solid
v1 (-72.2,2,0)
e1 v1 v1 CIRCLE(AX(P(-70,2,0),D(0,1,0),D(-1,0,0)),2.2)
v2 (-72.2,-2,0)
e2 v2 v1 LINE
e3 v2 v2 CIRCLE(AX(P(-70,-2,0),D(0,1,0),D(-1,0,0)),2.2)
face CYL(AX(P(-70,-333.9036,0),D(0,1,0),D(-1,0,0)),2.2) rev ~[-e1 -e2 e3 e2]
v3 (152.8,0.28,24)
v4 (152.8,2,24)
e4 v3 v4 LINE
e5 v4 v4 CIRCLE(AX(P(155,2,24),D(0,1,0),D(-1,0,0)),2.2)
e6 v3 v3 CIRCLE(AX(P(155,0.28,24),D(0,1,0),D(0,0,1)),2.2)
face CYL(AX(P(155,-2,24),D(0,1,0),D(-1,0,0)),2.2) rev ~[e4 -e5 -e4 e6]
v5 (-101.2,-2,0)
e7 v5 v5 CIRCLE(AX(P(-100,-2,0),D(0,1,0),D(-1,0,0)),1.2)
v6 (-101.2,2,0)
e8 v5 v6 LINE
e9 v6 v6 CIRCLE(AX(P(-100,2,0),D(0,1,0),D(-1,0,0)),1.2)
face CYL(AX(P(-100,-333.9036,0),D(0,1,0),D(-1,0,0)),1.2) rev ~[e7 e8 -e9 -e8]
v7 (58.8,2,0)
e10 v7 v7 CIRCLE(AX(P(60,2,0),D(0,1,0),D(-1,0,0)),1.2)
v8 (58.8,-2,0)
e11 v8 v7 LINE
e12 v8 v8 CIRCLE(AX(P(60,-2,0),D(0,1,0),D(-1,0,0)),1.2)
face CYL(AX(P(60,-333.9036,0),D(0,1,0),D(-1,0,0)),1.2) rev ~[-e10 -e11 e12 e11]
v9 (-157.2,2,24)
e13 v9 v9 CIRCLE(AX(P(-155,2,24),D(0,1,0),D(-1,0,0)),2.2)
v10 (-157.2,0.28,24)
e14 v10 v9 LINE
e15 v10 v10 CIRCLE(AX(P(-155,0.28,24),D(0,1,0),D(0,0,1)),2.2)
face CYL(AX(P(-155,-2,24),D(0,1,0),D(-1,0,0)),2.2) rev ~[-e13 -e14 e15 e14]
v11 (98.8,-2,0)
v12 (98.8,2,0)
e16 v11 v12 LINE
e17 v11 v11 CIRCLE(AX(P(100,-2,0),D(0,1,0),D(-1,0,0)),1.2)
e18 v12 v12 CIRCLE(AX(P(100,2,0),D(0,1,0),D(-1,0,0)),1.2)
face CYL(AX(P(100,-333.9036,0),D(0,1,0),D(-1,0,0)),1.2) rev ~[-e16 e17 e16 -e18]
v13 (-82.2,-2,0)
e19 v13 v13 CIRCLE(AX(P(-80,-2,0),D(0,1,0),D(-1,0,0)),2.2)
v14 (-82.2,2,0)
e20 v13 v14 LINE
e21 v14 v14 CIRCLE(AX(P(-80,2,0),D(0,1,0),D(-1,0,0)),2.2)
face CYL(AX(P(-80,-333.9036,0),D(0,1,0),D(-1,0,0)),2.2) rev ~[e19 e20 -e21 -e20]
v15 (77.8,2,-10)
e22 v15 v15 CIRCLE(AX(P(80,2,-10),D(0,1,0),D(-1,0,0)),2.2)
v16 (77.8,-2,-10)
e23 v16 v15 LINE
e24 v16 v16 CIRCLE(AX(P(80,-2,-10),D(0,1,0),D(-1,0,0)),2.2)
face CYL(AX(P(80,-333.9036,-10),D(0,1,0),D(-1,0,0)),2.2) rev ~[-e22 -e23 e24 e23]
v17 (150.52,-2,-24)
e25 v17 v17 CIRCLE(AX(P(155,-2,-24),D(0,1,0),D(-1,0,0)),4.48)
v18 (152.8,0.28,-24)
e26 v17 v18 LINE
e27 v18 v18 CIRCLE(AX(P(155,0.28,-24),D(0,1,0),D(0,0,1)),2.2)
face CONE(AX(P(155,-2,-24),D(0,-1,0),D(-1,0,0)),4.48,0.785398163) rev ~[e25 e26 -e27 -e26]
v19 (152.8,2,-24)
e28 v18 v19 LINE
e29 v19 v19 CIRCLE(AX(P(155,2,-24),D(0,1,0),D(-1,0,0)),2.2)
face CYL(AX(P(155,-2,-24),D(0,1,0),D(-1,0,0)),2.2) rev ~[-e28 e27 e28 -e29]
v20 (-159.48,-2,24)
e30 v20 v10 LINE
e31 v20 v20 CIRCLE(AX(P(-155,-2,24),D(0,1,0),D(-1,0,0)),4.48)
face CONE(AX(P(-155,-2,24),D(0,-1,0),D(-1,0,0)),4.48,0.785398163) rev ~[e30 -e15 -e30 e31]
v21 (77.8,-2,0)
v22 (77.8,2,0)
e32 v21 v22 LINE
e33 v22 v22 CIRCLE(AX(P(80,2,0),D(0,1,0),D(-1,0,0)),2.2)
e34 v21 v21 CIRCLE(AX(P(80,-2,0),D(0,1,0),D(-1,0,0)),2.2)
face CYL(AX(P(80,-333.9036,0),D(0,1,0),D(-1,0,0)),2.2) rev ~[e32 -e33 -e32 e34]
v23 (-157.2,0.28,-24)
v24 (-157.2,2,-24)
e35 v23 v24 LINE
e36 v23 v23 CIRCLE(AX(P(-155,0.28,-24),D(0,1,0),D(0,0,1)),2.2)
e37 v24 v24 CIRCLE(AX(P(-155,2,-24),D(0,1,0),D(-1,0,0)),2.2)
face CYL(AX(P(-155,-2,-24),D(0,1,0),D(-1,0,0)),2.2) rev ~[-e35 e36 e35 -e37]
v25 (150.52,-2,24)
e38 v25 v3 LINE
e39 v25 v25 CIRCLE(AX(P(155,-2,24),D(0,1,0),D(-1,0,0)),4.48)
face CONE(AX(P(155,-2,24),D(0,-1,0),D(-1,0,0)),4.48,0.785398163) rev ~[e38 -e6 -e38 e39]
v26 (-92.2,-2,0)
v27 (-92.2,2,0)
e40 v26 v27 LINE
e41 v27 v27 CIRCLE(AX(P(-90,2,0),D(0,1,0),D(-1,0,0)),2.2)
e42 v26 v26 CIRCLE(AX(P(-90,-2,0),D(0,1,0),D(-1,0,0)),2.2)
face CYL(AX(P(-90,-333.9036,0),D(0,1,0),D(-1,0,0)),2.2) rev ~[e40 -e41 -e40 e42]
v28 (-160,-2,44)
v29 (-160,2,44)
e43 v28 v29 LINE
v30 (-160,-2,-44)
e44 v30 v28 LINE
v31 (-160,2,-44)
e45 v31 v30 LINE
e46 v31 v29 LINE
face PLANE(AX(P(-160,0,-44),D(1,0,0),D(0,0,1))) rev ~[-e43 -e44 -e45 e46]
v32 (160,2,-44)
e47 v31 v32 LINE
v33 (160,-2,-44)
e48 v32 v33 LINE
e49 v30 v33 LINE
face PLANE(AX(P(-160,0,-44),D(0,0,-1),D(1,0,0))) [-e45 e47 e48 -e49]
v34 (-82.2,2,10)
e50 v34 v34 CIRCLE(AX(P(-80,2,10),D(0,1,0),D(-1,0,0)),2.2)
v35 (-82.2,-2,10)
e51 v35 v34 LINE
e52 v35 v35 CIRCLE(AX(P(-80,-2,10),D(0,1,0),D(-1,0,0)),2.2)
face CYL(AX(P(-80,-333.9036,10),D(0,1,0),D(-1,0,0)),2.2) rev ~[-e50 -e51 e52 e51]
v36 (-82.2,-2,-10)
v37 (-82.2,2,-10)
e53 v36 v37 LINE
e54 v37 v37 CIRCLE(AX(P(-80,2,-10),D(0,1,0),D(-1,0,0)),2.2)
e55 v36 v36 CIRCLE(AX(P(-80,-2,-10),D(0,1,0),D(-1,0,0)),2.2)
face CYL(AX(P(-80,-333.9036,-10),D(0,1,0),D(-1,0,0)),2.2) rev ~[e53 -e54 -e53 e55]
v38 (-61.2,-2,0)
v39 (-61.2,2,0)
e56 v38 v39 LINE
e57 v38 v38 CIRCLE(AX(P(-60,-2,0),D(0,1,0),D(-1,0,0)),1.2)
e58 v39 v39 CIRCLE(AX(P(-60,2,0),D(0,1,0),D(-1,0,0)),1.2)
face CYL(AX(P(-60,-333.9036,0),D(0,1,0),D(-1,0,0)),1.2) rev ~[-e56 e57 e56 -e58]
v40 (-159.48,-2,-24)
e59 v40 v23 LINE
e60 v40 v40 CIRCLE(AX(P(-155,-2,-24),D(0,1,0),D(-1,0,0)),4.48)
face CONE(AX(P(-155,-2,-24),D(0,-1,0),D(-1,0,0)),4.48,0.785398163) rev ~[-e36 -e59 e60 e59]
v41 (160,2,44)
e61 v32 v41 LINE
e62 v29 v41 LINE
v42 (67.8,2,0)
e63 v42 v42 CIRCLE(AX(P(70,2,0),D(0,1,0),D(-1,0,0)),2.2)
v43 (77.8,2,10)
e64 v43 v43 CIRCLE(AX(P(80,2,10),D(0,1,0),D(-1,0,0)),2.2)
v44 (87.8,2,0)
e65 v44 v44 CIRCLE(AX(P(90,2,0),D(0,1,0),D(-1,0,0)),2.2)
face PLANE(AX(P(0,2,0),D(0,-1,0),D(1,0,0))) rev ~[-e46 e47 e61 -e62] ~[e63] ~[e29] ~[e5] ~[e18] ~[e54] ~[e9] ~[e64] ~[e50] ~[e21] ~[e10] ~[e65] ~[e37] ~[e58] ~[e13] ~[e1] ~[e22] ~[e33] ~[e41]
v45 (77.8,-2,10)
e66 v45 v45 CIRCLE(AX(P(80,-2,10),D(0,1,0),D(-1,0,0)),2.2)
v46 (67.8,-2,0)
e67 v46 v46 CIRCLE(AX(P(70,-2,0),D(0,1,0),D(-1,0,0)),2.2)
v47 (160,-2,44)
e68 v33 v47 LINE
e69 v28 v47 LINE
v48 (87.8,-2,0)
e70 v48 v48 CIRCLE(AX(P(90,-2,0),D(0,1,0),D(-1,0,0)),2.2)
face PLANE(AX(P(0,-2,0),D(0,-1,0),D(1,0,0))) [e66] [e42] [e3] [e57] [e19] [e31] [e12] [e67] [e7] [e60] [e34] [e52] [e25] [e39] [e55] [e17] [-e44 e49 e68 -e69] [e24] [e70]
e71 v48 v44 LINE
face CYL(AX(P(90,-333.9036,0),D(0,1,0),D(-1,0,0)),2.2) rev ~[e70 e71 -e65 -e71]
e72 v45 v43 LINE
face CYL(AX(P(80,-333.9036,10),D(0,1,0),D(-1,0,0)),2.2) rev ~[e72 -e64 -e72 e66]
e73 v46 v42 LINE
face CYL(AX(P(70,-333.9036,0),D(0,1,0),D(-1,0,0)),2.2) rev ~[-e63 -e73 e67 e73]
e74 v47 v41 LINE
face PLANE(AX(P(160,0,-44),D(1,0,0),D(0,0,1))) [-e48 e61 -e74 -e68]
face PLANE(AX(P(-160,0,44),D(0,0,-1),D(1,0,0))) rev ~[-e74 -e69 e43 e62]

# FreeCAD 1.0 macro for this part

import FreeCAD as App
import Part
import Sketcher
from FreeCAD import Vector
Q = App.Units.Quantity

doc = App.newDocument("Part")
body = doc.addObject("PartDesign::Body", "Body")

# Sketch on XZ plane
sketch1 = doc.addObject("Sketcher::SketchObject", "Sketch")
body.addObject(sketch1)
sketch1.AttachmentSupport = (doc.XZ_Plane, [""])
sketch1.MapMode = "FlatFace"
sketch1.addGeometry([
    Part.LineSegment(Vector(-160, 44, 0), Vector(-160, -44, 0)),
    Part.LineSegment(Vector(-160, -44, 0), Vector(160, -44, 0)),
    Part.LineSegment(Vector(160, -44, 0), Vector(160, 44, 0)),
    Part.LineSegment(Vector(160, 44, 0), Vector(-160, 44, 0)),
], False)
sketch1.addConstraint([
    Sketcher.Constraint("Coincident", 0, 2, 1, 1),
    Sketcher.Constraint("Coincident", 1, 2, 2, 1),
    Sketcher.Constraint("Coincident", 2, 2, 3, 1),
    Sketcher.Constraint("Coincident", 3, 2, 0, 1),
    Sketcher.Constraint("Vertical", 0),
    Sketcher.Constraint("Horizontal", 1),
    Sketcher.Constraint("Vertical", 2),
    Sketcher.Constraint("Horizontal", 3),
    Sketcher.Constraint("Symmetric", 0, 2, 2, 2, -1, 1),
    Sketcher.Constraint("DistanceX", 1, 1, 1, 2, Q("320 mm")),
    Sketcher.Constraint("DistanceY", 0, 2, 0, 1, Q("88 mm")),
])
pad1 = doc.addObject("PartDesign::Pad", "Pad")
body.addObject(pad1)
pad1.Profile = sketch1
pad1.Length = 4
pad1.Midplane = True

# Sketch on XZ plane
sketch2 = doc.addObject("Sketcher::SketchObject", "Sketch001")
body.addObject(sketch2)
sketch2.AttachmentSupport = (doc.XZ_Plane, [""])
sketch2.MapMode = "FlatFace"
sketch2.AttachmentOffset = App.Placement(Vector(0, 0, 2), App.Rotation())
sketch2.addGeometry([
    Part.Circle(Vector(155, 24, 0), Vector(0, 0, 1), 2.2),
    Part.Circle(Vector(155, -24, 0), Vector(0, 0, 1), 2.2),
    Part.Circle(Vector(-155, -24, 0), Vector(0, 0, 1), 2.2),
    Part.Circle(Vector(-155, 24, 0), Vector(0, 0, 1), 2.2),
], False)
sketch2.addConstraint([
    Sketcher.Constraint("Equal", 0, 1),
    Sketcher.Constraint("Equal", 1, 2),
    Sketcher.Constraint("Equal", 2, 3),
    Sketcher.Constraint("Symmetric", 0, 3, 2, 3, -1, 1),
    Sketcher.Constraint("Symmetric", 1, 3, 3, 3, -1, 1),
    Sketcher.Constraint("Symmetric", 1, 3, 2, 3, -2),
    Sketcher.Constraint("Diameter", 0, Q("4.4 mm")),
    Sketcher.Constraint("DistanceX", -1, 1, 0, 3, Q("155 mm")),
    Sketcher.Constraint("DistanceY", -1, 1, 0, 3, Q("24 mm")),
])
doc.recompute()
hole = doc.addObject("PartDesign::Hole", "Hole")
body.addObject(hole)
hole.Profile = sketch2
hole.ThreadType = "None"
hole.Diameter = 4.4
hole.DepthType = "Dimension"
hole.Depth = 17.25
hole.DrillPoint = "Angled"
hole.DrillPointAngle = 118
hole.HoleCutType = "Countersink"
hole.HoleCutDiameter = 8.96
hole.HoleCutCountersinkAngle = 90

# Sketch on XZ plane
sketch3 = doc.addObject("Sketcher::SketchObject", "Sketch002")
body.addObject(sketch3)
sketch3.AttachmentSupport = (doc.XZ_Plane, [""])
sketch3.MapMode = "FlatFace"
sketch3.AttachmentOffset = App.Placement(Vector(0, 0, 2), App.Rotation())
sketch3.addGeometry([
    Part.Circle(Vector(-100, 0, 0), Vector(0, 0, 1), 1.2),
    Part.Circle(Vector(-60, 0, 0), Vector(0, 0, 1), 1.2),
    Part.Circle(Vector(60, 0, 0), Vector(0, 0, 1), 1.2),
    Part.Circle(Vector(100, 0, 0), Vector(0, 0, 1), 1.2),
], False)
sketch3.addConstraint([
    Sketcher.Constraint("Equal", 0, 1),
    Sketcher.Constraint("Equal", 1, 2),
    Sketcher.Constraint("Equal", 2, 3),
    Sketcher.Constraint("Symmetric", 1, 3, 2, 3, -1, 1),
    Sketcher.Constraint("Symmetric", 0, 3, 3, 3, -1, 1),
    Sketcher.Constraint("PointOnObject", 0, 3, -1),
    Sketcher.Constraint("PointOnObject", 1, 3, -1),
    Sketcher.Constraint("Diameter", 0, Q("2.4 mm")),
    Sketcher.Constraint("DistanceX", 0, 3, -1, 1, Q("100 mm")),
    Sketcher.Constraint("DistanceX", 1, 3, -1, 1, Q("60 mm")),
])
doc.recompute()
hole2 = doc.addObject("PartDesign::Hole", "Hole001")
body.addObject(hole2)
hole2.Profile = sketch3
hole2.ThreadType = "None"
hole2.Diameter = 2.4
hole2.DepthType = "ThroughAll"

# Sketch on XZ plane
sketch4 = doc.addObject("Sketcher::SketchObject", "Sketch003")
body.addObject(sketch4)
sketch4.AttachmentSupport = (doc.XZ_Plane, [""])
sketch4.MapMode = "FlatFace"
sketch4.AttachmentOffset = App.Placement(Vector(0, 0, 2), App.Rotation())
sketch4.addGeometry([
    Part.Circle(Vector(-90, 0, 0), Vector(0, 0, 1), 2.2),  # 0
    Part.Circle(Vector(-80, 10, 0), Vector(0, 0, 1), 2.2),  # 1
    Part.Circle(Vector(-80, 0, 0), Vector(0, 0, 1), 2.2),  # 2
    Part.Circle(Vector(-80, -10, 0), Vector(0, 0, 1), 2.2),  # 3
    Part.Circle(Vector(-70, 0, 0), Vector(0, 0, 1), 2.2),  # 4
    Part.Circle(Vector(70, 0, 0), Vector(0, 0, 1), 2.2),  # 5
    Part.Circle(Vector(80, 0, 0), Vector(0, 0, 1), 2.2),  # 6
    Part.Circle(Vector(90, 0, 0), Vector(0, 0, 1), 2.2),  # 7
    Part.Circle(Vector(80, 10, 0), Vector(0, 0, 1), 2.2),  # 8
    Part.Circle(Vector(80, -10, 0), Vector(0, 0, 1), 2.2),  # 9
], False)
sketch4.addConstraint([
    Sketcher.Constraint("Equal", 0, 1),
    Sketcher.Constraint("Equal", 1, 2),
    Sketcher.Constraint("Equal", 2, 3),
    Sketcher.Constraint("Equal", 3, 4),
    Sketcher.Constraint("Equal", 4, 5),
    Sketcher.Constraint("Equal", 5, 6),
    Sketcher.Constraint("Equal", 6, 7),
    Sketcher.Constraint("Equal", 7, 8),
    Sketcher.Constraint("Equal", 8, 9),
    Sketcher.Constraint("Symmetric", 4, 3, 5, 3, -1, 1),
    Sketcher.Constraint("Symmetric", 2, 3, 6, 3, -1, 1),
    Sketcher.Constraint("Symmetric", 0, 3, 7, 3, -1, 1),
    Sketcher.Constraint("Symmetric", 3, 3, 8, 3, -1, 1),
    Sketcher.Constraint("Symmetric", 1, 3, 9, 3, -1, 1),
    Sketcher.Constraint("Symmetric", 1, 3, 8, 3, -2),
    Sketcher.Constraint("PointOnObject", 0, 3, -1),
    Sketcher.Constraint("PointOnObject", 2, 3, -1),
    Sketcher.Constraint("PointOnObject", 4, 3, -1),
    Sketcher.Constraint("Vertical", 1, 3, 2, 3),
    Sketcher.Constraint("Diameter", 0, Q("4.4 mm")),
    Sketcher.Constraint("DistanceX", 0, 3, -1, 1, Q("90 mm")),
    Sketcher.Constraint("DistanceX", 1, 3, -1, 1, Q("80 mm")),
    Sketcher.Constraint("DistanceY", -1, 1, 1, 3, Q("10 mm")),
    Sketcher.Constraint("DistanceX", 4, 3, -1, 1, Q("70 mm")),
])
doc.recompute()
hole3 = doc.addObject("PartDesign::Hole", "Hole002")
body.addObject(hole3)
hole3.Profile = sketch4
hole3.ThreadType = "None"
hole3.Diameter = 4.4
hole3.DepthType = "ThroughAll"

doc.recompute()
